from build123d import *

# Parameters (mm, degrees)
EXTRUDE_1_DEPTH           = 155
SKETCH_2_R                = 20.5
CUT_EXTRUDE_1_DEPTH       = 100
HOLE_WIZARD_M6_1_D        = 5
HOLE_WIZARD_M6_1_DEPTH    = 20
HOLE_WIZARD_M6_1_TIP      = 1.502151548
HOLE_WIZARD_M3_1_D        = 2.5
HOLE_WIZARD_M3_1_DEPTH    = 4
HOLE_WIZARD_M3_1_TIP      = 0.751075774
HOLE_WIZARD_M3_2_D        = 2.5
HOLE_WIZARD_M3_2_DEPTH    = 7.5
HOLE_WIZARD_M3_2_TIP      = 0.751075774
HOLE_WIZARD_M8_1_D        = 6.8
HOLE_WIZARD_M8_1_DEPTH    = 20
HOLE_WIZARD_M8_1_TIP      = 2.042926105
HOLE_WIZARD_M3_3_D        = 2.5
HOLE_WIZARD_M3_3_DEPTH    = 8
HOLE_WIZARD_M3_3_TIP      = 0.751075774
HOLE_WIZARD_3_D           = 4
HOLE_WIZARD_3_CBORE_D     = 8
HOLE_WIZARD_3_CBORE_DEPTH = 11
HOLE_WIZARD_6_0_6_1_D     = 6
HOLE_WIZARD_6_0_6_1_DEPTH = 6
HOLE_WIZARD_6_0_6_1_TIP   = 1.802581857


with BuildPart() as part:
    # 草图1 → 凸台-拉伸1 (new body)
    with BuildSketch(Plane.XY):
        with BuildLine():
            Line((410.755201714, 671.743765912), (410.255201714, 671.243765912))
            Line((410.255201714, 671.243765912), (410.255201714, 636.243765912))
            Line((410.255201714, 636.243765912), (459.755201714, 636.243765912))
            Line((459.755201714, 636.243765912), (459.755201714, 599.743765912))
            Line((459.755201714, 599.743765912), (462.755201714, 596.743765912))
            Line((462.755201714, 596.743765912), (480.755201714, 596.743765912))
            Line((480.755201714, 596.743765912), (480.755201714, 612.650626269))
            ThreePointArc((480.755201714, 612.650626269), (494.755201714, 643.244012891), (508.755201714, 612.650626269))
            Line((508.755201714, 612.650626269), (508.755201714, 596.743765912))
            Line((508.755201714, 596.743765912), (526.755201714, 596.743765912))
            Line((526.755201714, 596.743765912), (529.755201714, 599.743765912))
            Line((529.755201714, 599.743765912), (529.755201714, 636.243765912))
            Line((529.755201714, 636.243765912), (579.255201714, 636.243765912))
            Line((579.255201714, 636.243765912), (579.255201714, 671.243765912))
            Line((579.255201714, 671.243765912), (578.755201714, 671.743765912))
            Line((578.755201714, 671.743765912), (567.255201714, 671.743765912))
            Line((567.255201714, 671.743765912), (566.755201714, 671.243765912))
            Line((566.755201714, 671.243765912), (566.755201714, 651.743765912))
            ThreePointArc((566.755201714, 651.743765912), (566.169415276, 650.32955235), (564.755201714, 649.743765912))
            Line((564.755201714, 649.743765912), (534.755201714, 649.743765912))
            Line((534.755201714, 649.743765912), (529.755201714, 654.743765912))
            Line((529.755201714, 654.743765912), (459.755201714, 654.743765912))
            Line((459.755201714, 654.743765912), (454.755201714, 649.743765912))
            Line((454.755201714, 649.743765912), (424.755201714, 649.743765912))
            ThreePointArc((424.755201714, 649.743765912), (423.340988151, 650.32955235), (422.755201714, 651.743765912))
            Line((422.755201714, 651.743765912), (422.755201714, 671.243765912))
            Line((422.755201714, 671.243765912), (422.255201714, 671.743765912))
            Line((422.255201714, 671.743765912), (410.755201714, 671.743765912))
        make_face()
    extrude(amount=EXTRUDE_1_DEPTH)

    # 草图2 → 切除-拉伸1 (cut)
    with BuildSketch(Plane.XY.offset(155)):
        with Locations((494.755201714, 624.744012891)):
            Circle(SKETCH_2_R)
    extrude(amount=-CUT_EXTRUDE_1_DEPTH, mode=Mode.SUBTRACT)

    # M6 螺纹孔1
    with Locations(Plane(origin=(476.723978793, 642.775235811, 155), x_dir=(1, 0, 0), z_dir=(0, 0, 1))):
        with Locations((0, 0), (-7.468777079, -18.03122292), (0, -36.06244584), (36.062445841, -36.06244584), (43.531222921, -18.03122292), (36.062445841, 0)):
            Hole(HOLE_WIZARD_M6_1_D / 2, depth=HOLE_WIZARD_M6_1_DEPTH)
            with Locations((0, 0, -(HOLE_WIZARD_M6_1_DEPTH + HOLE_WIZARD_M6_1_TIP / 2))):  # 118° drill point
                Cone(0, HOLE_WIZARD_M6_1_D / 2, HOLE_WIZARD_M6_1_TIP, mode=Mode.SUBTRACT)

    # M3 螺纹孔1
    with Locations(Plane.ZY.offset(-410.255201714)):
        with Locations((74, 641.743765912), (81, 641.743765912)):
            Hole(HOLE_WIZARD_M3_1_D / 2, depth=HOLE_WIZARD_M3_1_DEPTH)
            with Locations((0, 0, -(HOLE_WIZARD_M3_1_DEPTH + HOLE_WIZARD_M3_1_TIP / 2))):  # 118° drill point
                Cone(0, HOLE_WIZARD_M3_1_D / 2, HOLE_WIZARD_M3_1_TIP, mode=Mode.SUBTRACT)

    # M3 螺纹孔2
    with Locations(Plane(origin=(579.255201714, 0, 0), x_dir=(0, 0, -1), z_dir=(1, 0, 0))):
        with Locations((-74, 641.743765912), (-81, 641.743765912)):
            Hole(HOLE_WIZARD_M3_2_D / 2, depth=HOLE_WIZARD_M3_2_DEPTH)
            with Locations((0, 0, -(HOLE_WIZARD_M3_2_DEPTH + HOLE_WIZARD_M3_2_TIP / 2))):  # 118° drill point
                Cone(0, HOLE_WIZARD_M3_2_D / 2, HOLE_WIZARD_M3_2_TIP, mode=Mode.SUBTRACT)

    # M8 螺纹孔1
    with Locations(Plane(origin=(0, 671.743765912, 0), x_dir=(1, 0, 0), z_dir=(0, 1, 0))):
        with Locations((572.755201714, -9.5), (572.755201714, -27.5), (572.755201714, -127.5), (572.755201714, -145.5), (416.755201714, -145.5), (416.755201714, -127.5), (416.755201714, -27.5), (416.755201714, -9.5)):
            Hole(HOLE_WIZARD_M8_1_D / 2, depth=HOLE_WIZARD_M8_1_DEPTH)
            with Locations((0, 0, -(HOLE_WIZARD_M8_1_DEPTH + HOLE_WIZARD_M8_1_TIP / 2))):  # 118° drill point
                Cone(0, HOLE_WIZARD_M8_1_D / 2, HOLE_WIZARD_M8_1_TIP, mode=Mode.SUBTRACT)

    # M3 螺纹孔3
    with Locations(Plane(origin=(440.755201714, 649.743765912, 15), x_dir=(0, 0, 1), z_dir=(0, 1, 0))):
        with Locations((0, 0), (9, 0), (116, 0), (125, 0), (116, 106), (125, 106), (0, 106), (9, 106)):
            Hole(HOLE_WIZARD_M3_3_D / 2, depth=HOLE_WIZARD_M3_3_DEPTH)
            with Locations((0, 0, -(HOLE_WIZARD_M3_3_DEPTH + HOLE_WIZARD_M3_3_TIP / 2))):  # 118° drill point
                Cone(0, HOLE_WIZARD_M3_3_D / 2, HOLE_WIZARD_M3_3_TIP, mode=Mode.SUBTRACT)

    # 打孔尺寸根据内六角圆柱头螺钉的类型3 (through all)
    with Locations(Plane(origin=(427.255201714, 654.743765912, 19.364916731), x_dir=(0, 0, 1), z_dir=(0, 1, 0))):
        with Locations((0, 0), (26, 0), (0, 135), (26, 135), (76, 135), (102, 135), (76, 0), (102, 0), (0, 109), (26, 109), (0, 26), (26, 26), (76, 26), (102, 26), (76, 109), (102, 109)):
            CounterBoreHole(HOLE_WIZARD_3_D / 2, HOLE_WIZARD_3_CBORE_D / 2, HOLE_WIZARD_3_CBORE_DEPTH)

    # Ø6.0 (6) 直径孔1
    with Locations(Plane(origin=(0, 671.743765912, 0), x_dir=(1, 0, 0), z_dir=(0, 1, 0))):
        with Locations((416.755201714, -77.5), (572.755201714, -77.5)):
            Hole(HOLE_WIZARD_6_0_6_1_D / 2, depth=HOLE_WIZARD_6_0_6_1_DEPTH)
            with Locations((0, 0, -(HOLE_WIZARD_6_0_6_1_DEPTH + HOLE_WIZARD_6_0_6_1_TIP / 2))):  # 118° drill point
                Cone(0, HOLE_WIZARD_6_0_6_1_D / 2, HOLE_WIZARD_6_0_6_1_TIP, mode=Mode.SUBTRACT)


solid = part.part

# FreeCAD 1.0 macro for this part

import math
import FreeCAD as App
import Part
import Sketcher

doc = App.newDocument("Part")
body = doc.addObject("PartDesign::Body", "Body")

sketch1 = body.newObject("Sketcher::SketchObject", "Sketch")
sketch1.AttachmentSupport = (doc.getObject("XY_Plane"), [""])
sketch1.MapMode = "FlatFace"
sketch1.addGeometry([
    Part.LineSegment(App.Vector(410.8, 671.7, 0), App.Vector(410.3, 671.2, 0)),
    Part.LineSegment(App.Vector(410.3, 671.2, 0), App.Vector(410.3, 636.2, 0)),
    Part.LineSegment(App.Vector(410.3, 636.2, 0), App.Vector(459.8, 636.2, 0)),
    Part.LineSegment(App.Vector(459.8, 636.2, 0), App.Vector(459.8, 599.7, 0)),
    Part.LineSegment(App.Vector(459.8, 599.7, 0), App.Vector(462.8, 596.7, 0)),
    Part.LineSegment(App.Vector(462.8, 596.7, 0), App.Vector(480.8, 596.7, 0)),
    Part.LineSegment(App.Vector(480.8, 596.7, 0), App.Vector(480.8, 612.7, 0)),
    Part.ArcOfCircle(Part.Circle(App.Vector(494.8, 624.7, 0), App.Vector(0, 0, 1), 18.5), math.radians(-41), math.radians(221)),
    Part.LineSegment(App.Vector(508.8, 612.7, 0), App.Vector(508.8, 596.7, 0)),
    Part.LineSegment(App.Vector(508.8, 596.7, 0), App.Vector(526.8, 596.7, 0)),
    Part.LineSegment(App.Vector(526.8, 596.7, 0), App.Vector(529.8, 599.7, 0)),
    Part.LineSegment(App.Vector(529.8, 599.7, 0), App.Vector(529.8, 636.2, 0)),
    Part.LineSegment(App.Vector(529.8, 636.2, 0), App.Vector(579.3, 636.2, 0)),
    Part.LineSegment(App.Vector(579.3, 636.2, 0), App.Vector(579.3, 671.2, 0)),
    Part.LineSegment(App.Vector(579.3, 671.2, 0), App.Vector(578.8, 671.7, 0)),
    Part.LineSegment(App.Vector(578.8, 671.7, 0), App.Vector(567.3, 671.7, 0)),
    Part.LineSegment(App.Vector(567.3, 671.7, 0), App.Vector(566.8, 671.2, 0)),
    Part.LineSegment(App.Vector(566.8, 671.2, 0), App.Vector(566.8, 651.7, 0)),
    Part.ArcOfCircle(Part.Circle(App.Vector(564.8, 651.7, 0), App.Vector(0, 0, 1), 2), math.radians(-90), math.radians(0)),
    Part.LineSegment(App.Vector(564.8, 649.7, 0), App.Vector(534.8, 649.7, 0)),
    Part.LineSegment(App.Vector(534.8, 649.7, 0), App.Vector(529.8, 654.7, 0)),
    Part.LineSegment(App.Vector(529.8, 654.7, 0), App.Vector(459.8, 654.7, 0)),
    Part.LineSegment(App.Vector(459.8, 654.7, 0), App.Vector(454.8, 649.7, 0)),
    Part.LineSegment(App.Vector(454.8, 649.7, 0), App.Vector(424.8, 649.7, 0)),
    Part.ArcOfCircle(Part.Circle(App.Vector(424.8, 651.7, 0), App.Vector(0, 0, 1), 2), math.radians(180), math.radians(270)),
    Part.LineSegment(App.Vector(422.8, 651.7, 0), App.Vector(422.8, 671.2, 0)),
    Part.LineSegment(App.Vector(422.8, 671.2, 0), App.Vector(422.3, 671.7, 0)),
    Part.LineSegment(App.Vector(422.3, 671.7, 0), App.Vector(410.8, 671.7, 0)),
], False)
sketch1.addConstraint([
    Sketcher.Constraint("Coincident", 0, 2, 1, 1),
    Sketcher.Constraint("Coincident", 1, 2, 2, 1),
    Sketcher.Constraint("Coincident", 2, 2, 3, 1),
    Sketcher.Constraint("Coincident", 3, 2, 4, 1),
    Sketcher.Constraint("Coincident", 4, 2, 5, 1),
    Sketcher.Constraint("Coincident", 5, 2, 6, 1),
    Sketcher.Constraint("Coincident", 6, 2, 7, 2),
    Sketcher.Constraint("Coincident", 7, 1, 8, 1),
    Sketcher.Constraint("Coincident", 8, 2, 9, 1),
    Sketcher.Constraint("Coincident", 9, 2, 10, 1),
    Sketcher.Constraint("Coincident", 10, 2, 11, 1),
    Sketcher.Constraint("Coincident", 11, 2, 12, 1),
    Sketcher.Constraint("Coincident", 12, 2, 13, 1),
    Sketcher.Constraint("Coincident", 13, 2, 14, 1),
    Sketcher.Constraint("Coincident", 14, 2, 15, 1),
    Sketcher.Constraint("Coincident", 15, 2, 16, 1),
    Sketcher.Constraint("Coincident", 16, 2, 17, 1),
    Sketcher.Constraint("Tangent", 17, 2, 18, 2),
    Sketcher.Constraint("Tangent", 18, 1, 19, 1),
    Sketcher.Constraint("Coincident", 19, 2, 20, 1),
    Sketcher.Constraint("Coincident", 20, 2, 21, 1),
    Sketcher.Constraint("Coincident", 21, 2, 22, 1),
    Sketcher.Constraint("Coincident", 22, 2, 23, 1),
    Sketcher.Constraint("Tangent", 23, 2, 24, 2),
    Sketcher.Constraint("Tangent", 24, 1, 25, 1),
    Sketcher.Constraint("Coincident", 25, 2, 26, 1),
    Sketcher.Constraint("Coincident", 26, 2, 27, 1),
    Sketcher.Constraint("Coincident", 27, 2, 0, 1),
    Sketcher.Constraint("Vertical", 1),
    Sketcher.Constraint("Horizontal", 2),
    Sketcher.Constraint("Vertical", 3),
    Sketcher.Constraint("Horizontal", 5),
    Sketcher.Constraint("Vertical", 6),
    Sketcher.Constraint("Vertical", 8),
    Sketcher.Constraint("Horizontal", 9),
    Sketcher.Constraint("Vertical", 11),
    Sketcher.Constraint("Horizontal", 12),
    Sketcher.Constraint("Vertical", 13),
    Sketcher.Constraint("Horizontal", 15),
    Sketcher.Constraint("Vertical", 17),
    Sketcher.Constraint("Horizontal", 19),
    Sketcher.Constraint("Horizontal", 21),
    Sketcher.Constraint("Horizontal", 23),
    Sketcher.Constraint("Vertical", 25),
    Sketcher.Constraint("Horizontal", 27),
    Sketcher.Constraint("Equal", 18, 24),
    Sketcher.Constraint("Perpendicular", 0, 4),
    Sketcher.Constraint("Perpendicular", 4, 10),
    Sketcher.Constraint("Perpendicular", 10, 14),
    Sketcher.Constraint("Perpendicular", 14, 16),
    Sketcher.Constraint("Perpendicular", 16, 20),
    Sketcher.Constraint("Perpendicular", 20, 22),
    Sketcher.Constraint("Perpendicular", 22, 26),
    Sketcher.Constraint("Horizontal", 18, 3, 24, 3),
    Sketcher.Constraint("Horizontal", 6, 2, 7, 1),
    Sketcher.Constraint("Horizontal", 5, 2, 8, 2),
    Sketcher.Constraint("Horizontal", 3, 2, 10, 2),
    Sketcher.Constraint("Horizontal", 2, 2, 11, 2),
    Sketcher.Constraint("Horizontal", 0, 2, 13, 2),
    Sketcher.Constraint("Horizontal", 13, 2, 16, 2),
    Sketcher.Constraint("Horizontal", 16, 2, 25, 2),
    Sketcher.Constraint("Horizontal", 15, 2, 26, 2),
    Sketcher.Constraint("Vertical", 11, 2, 20, 2),
    Sketcher.Constraint("Vertical", 3, 2, 21, 2),
    Sketcher.Constraint("Equal", 5, 9),
    Sketcher.Constraint("Equal", 2, 12),
    Sketcher.Constraint("Equal", 19, 23),
    Sketcher.Constraint("Equal", 15, 27),
    Sketcher.Constraint("Radius", 18, 2.0),
    Sketcher.Constraint("Radius", 7, 18.5),
    Sketcher.Constraint("DistanceX", 5, 1, 5, 2, 18.0),
    Sketcher.Constraint("DistanceX", 19, 2, 19, 1, 30.0),
    Sketcher.Constraint("DistanceX", 21, 2, 21, 1, 70.0),
    Sketcher.Constraint("DistanceY", 1, 2, 1, 1, 35.0),
    Sketcher.Constraint("DistanceX", 2, 1, 2, 2, 49.5),
    Sketcher.Constraint("DistanceX", 15, 2, 15, 1, 11.5),
    Sketcher.Constraint("DistanceY", 3, 2, 3, 1, 36.5),
    Sketcher.Constraint("DistanceY", 17, 2, 17, 1, 19.5),
    Sketcher.Constraint("DistanceX", 7, 3, 18, 3, 70.0),
    Sketcher.Constraint("DistanceX", 3, 2, 4, 2, 3.0),
    Sketcher.Constraint("DistanceY", 6, 1, 6, 2, 15.90686),
    Sketcher.Constraint("DistanceX", -1, 1, 7, 3, 494.755202),
    Sketcher.Constraint("DistanceY", -1, 1, 7, 3, 624.744013),
])
pad1 = body.newObject("PartDesign::Pad", "Pad")
pad1.Profile = sketch1
pad1.Length = 155

sketch2 = body.newObject("Sketcher::SketchObject", "Sketch001")
sketch2.AttachmentSupport = (doc.getObject("XY_Plane"), [""])
sketch2.MapMode = "FlatFace"
sketch2.AttachmentOffset = App.Placement(App.Vector(0, 0, 155), App.Rotation())
sketch2.addGeometry(Part.Circle(App.Vector(495, 625, 0), App.Vector(0, 0, 1), 20), False)
sketch2.addConstraint([
    Sketcher.Constraint("Diameter", 0, 41.0),
    Sketcher.Constraint("DistanceX", -1, 1, 0, 3, 494.755202),
    Sketcher.Constraint("DistanceY", -1, 1, 0, 3, 624.744013),
])
pocket1 = body.newObject("PartDesign::Pocket", "Pocket")
pocket1.Profile = sketch2
pocket1.Length = 100

sketch3 = body.newObject("Sketcher::SketchObject", "Sketch002")
sketch3.AttachmentSupport = (doc.getObject("XY_Plane"), [""])
sketch3.MapMode = "FlatFace"
sketch3.AttachmentOffset = App.Placement(App.Vector(0, 0, 155), App.Rotation())
sketch3.addGeometry([
    Part.Circle(App.Vector(476.7, 642.8, 0), App.Vector(0, 0, 1), 2.5),
    Part.Circle(App.Vector(469.3, 624.7, 0), App.Vector(0, 0, 1), 2.5),
    Part.Circle(App.Vector(476.7, 606.7, 0), App.Vector(0, 0, 1), 2.5),
    Part.Circle(App.Vector(512.8, 606.7, 0), App.Vector(0, 0, 1), 2.5),
    Part.Circle(App.Vector(520.3, 624.7, 0), App.Vector(0, 0, 1), 2.5),
    Part.Circle(App.Vector(512.8, 642.8, 0), App.Vector(0, 0, 1), 2.5),
], False)
sketch3.addConstraint([
    Sketcher.Constraint("Equal", 0, 1),
    Sketcher.Constraint("Equal", 1, 2),
    Sketcher.Constraint("Equal", 2, 3),
    Sketcher.Constraint("Equal", 3, 4),
    Sketcher.Constraint("Equal", 4, 5),
    Sketcher.Constraint("Horizontal", 2, 3, 3, 3),
    Sketcher.Constraint("Horizontal", 1, 3, 4, 3),
    Sketcher.Constraint("Horizontal", 0, 3, 5, 3),
    Sketcher.Constraint("Vertical", 0, 3, 2, 3),
    Sketcher.Constraint("Vertical", 3, 3, 5, 3),
    Sketcher.Constraint("Diameter", 0, 5.0),
    Sketcher.Constraint("DistanceX", 1, 3, 4, 3, 51.0),
    Sketcher.Constraint("DistanceX", -1, 1, 1, 3, 469.255202),
    Sketcher.Constraint("DistanceX", -1, 1, 0, 3, 476.723979),
    Sketcher.Constraint("DistanceY", -1, 1, 2, 3, 606.71279),
    Sketcher.Constraint("DistanceY", -1, 1, 0, 3, 642.775236),
    Sketcher.Constraint("DistanceY", -1, 1, 1, 3, 624.744013),
    Sketcher.Constraint("DistanceX", -1, 1, 3, 3, 512.786425),
])
doc.recompute()
hole = body.newObject("PartDesign::Hole", "Hole")
hole.Profile = sketch3
hole.ThreadType = "None"
hole.Diameter = 5
hole.DepthType = "Dimension"
hole.Depth = 20
hole.DrillPoint = "Angled"
hole.DrillPointAngle = 118

sketch4 = body.newObject("Sketcher::SketchObject", "Sketch003")
sketch4.AttachmentSupport = (doc.getObject("YZ_Plane"), [""])
sketch4.MapMode = "FlatFace"
sketch4.AttachmentOffset = App.Placement(App.Vector(0, 0, 410.255202), App.Rotation())
sketch4.addGeometry([
    Part.Circle(App.Vector(641.7, 74, 0), App.Vector(0, 0, 1), 1.2),
    Part.Circle(App.Vector(641.7, 81, 0), App.Vector(0, 0, 1), 1.2),
], False)
sketch4.addConstraint([
    Sketcher.Constraint("Equal", 0, 1),
    Sketcher.Constraint("Vertical", 0, 3, 1, 3),
    Sketcher.Constraint("Diameter", 0, 2.5),
    Sketcher.Constraint("DistanceY", -1, 1, 0, 3, 74.0),
    Sketcher.Constraint("DistanceY", -1, 1, 1, 3, 81.0),
    Sketcher.Constraint("DistanceX", -1, 1, 0, 3, 641.743766),
])
doc.recompute()
hole2 = body.newObject("PartDesign::Hole", "Hole001")
hole2.Profile = sketch4
hole2.ThreadType = "None"
hole2.Diameter = 2.5
hole2.DepthType = "Dimension"
hole2.Depth = 4
hole2.DrillPoint = "Angled"
hole2.DrillPointAngle = 118
hole2.Reversed = True

sketch5 = body.newObject("Sketcher::SketchObject", "Sketch004")
sketch5.AttachmentSupport = (doc.getObject("YZ_Plane"), [""])
sketch5.MapMode = "FlatFace"
sketch5.AttachmentOffset = App.Placement(App.Vector(0, 0, 579.255202), App.Rotation())
sketch5.addGeometry([
    Part.Circle(App.Vector(641.7, 74, 0), App.Vector(0, 0, 1), 1.2),
    Part.Circle(App.Vector(641.7, 81, 0), App.Vector(0, 0, 1), 1.2),
], False)
sketch5.addConstraint([
    Sketcher.Constraint("Equal", 0, 1),
    Sketcher.Constraint("Vertical", 0, 3, 1, 3),
    Sketcher.Constraint("Diameter", 0, 2.5),
    Sketcher.Constraint("DistanceY", -1, 1, 0, 3, 74.0),
    Sketcher.Constraint("DistanceY", -1, 1, 1, 3, 81.0),
    Sketcher.Constraint("DistanceX", -1, 1, 0, 3, 641.743766),
])
doc.recompute()
hole3 = body.newObject("PartDesign::Hole", "Hole002")
hole3.Profile = sketch5
hole3.ThreadType = "None"
hole3.Diameter = 2.5
hole3.DepthType = "Dimension"
hole3.Depth = 7.5
hole3.DrillPoint = "Angled"
hole3.DrillPointAngle = 118

sketch6 = body.newObject("Sketcher::SketchObject", "Sketch005")
sketch6.AttachmentSupport = (doc.getObject("XZ_Plane"), [""])
sketch6.MapMode = "FlatFace"
sketch6.AttachmentOffset = App.Placement(App.Vector(0, 0, -671.743766), App.Rotation())
sketch6.addGeometry([
    Part.Circle(App.Vector(572.8, 9.5, 0), App.Vector(0, 0, 1), 3.4),
    Part.Circle(App.Vector(572.8, 27.5, 0), App.Vector(0, 0, 1), 3.4),
    Part.Circle(App.Vector(572.8, 127.5, 0), App.Vector(0, 0, 1), 3.4),
    Part.Circle(App.Vector(572.8, 145.5, 0), App.Vector(0, 0, 1), 3.4),
    Part.Circle(App.Vector(416.8, 145.5, 0), App.Vector(0, 0, 1), 3.4),
    Part.Circle(App.Vector(416.8, 127.5, 0), App.Vector(0, 0, 1), 3.4),
    Part.Circle(App.Vector(416.8, 27.5, 0), App.Vector(0, 0, 1), 3.4),
    Part.Circle(App.Vector(416.8, 9.5, 0), App.Vector(0, 0, 1), 3.4),
], False)
sketch6.addConstraint([
    Sketcher.Constraint("Equal", 0, 1),
    Sketcher.Constraint("Equal", 1, 2),
    Sketcher.Constraint("Equal", 2, 3),
    Sketcher.Constraint("Equal", 3, 4),
    Sketcher.Constraint("Equal", 4, 5),
    Sketcher.Constraint("Equal", 5, 6),
    Sketcher.Constraint("Equal", 6, 7),
    Sketcher.Constraint("Horizontal", 3, 3, 4, 3),
    Sketcher.Constraint("Horizontal", 2, 3, 5, 3),
    Sketcher.Constraint("Horizontal", 1, 3, 6, 3),
    Sketcher.Constraint("Horizontal", 0, 3, 7, 3),
    Sketcher.Constraint("Vertical", 0, 3, 1, 3),
    Sketcher.Constraint("Vertical", 1, 3, 2, 3),
    Sketcher.Constraint("Vertical", 2, 3, 3, 3),
    Sketcher.Constraint("Vertical", 4, 3, 5, 3),
    Sketcher.Constraint("Vertical", 5, 3, 6, 3),
    Sketcher.Constraint("Vertical", 6, 3, 7, 3),
    Sketcher.Constraint("Diameter", 0, 6.8),
    Sketcher.Constraint("DistanceY", 0, 3, 1, 3, 18.0),
    Sketcher.Constraint("DistanceY", 1, 3, 2, 3, 100.0),
    Sketcher.Constraint("DistanceY", 2, 3, 3, 3, 18.0),
    Sketcher.Constraint("DistanceX", 4, 3, 3, 3, 156.0),
    Sketcher.Constraint("DistanceY", -1, 1, 0, 3, 9.5),
    Sketcher.Constraint("DistanceX", -1, 1, 0, 3, 572.755202),
])
doc.recompute()
hole4 = body.newObject("PartDesign::Hole", "Hole003")
hole4.Profile = sketch6
hole4.ThreadType = "None"
hole4.Diameter = 6.8
hole4.DepthType = "Dimension"
hole4.Depth = 20
hole4.DrillPoint = "Angled"
hole4.DrillPointAngle = 118
hole4.Reversed = True

sketch7 = body.newObject("Sketcher::SketchObject", "Sketch006")
sketch7.AttachmentSupport = (doc.getObject("XZ_Plane"), [""])
sketch7.MapMode = "FlatFace"
sketch7.AttachmentOffset = App.Placement(App.Vector(0, 0, -649.743766), App.Rotation())
sketch7.addGeometry([
    Part.Circle(App.Vector(440.8, 15, 0), App.Vector(0, 0, 1), 1.2),
    Part.Circle(App.Vector(440.8, 24, 0), App.Vector(0, 0, 1), 1.2),
    Part.Circle(App.Vector(440.8, 131, 0), App.Vector(0, 0, 1), 1.2),
    Part.Circle(App.Vector(440.8, 140, 0), App.Vector(0, 0, 1), 1.2),
    Part.Circle(App.Vector(546.8, 131, 0), App.Vector(0, 0, 1), 1.2),
    Part.Circle(App.Vector(546.8, 140, 0), App.Vector(0, 0, 1), 1.2),
    Part.Circle(App.Vector(546.8, 15, 0), App.Vector(0, 0, 1), 1.2),
    Part.Circle(App.Vector(546.8, 24, 0), App.Vector(0, 0, 1), 1.2),
], False)
sketch7.addConstraint([
    Sketcher.Constraint("Equal", 0, 1),
    Sketcher.Constraint("Equal", 1, 2),
    Sketcher.Constraint("Equal", 2, 3),
    Sketcher.Constraint("Equal", 3, 4),
    Sketcher.Constraint("Equal", 4, 5),
    Sketcher.Constraint("Equal", 5, 6),
    Sketcher.Constraint("Equal", 6, 7),
    Sketcher.Constraint("Horizontal", 2, 3, 4, 3),
    Sketcher.Constraint("Horizontal", 3, 3, 5, 3),
    Sketcher.Constraint("Horizontal", 0, 3, 6, 3),
    Sketcher.Constraint("Horizontal", 1, 3, 7, 3),
    Sketcher.Constraint("Vertical", 0, 3, 1, 3),
    Sketcher.Constraint("Vertical", 1, 3, 2, 3),
    Sketcher.Constraint("Vertical", 2, 3, 3, 3),
    Sketcher.Constraint("Vertical", 4, 3, 5, 3),
    Sketcher.Constraint("Vertical", 5, 3, 6, 3),
    Sketcher.Constraint("Vertical", 6, 3, 7, 3),
    Sketcher.Constraint("Diameter", 0, 2.5),
    Sketcher.Constraint("DistanceY", -1, 1, 0, 3, 15.0),
    Sketcher.Constraint("DistanceY", -1, 1, 1, 3, 24.0),
    Sketcher.Constraint("DistanceY", -1, 1, 2, 3, 131.0),
    Sketcher.Constraint("DistanceY", -1, 1, 3, 3, 140.0),
    Sketcher.Constraint("DistanceX", 2, 3, 4, 3, 106.0),
    Sketcher.Constraint("DistanceX", -1, 1, 0, 3, 440.755202),
])
doc.recompute()
hole5 = body.newObject("PartDesign::Hole", "Hole004")
hole5.Profile = sketch7
hole5.ThreadType = "None"
hole5.Diameter = 2.5
hole5.DepthType = "Dimension"
hole5.Depth = 8
hole5.DrillPoint = "Angled"
hole5.DrillPointAngle = 118
hole5.Reversed = True

sketch8 = body.newObject("Sketcher::SketchObject", "Sketch007")
sketch8.AttachmentSupport = (doc.getObject("XZ_Plane"), [""])
sketch8.MapMode = "FlatFace"
sketch8.AttachmentOffset = App.Placement(App.Vector(0, 0, -654.743766), App.Rotation())
sketch8.addGeometry([
    Part.Circle(App.Vector(427.3, 19.4, 0), App.Vector(0, 0, 1), 2),
    Part.Circle(App.Vector(427.3, 45.4, 0), App.Vector(0, 0, 1), 2),
    Part.Circle(App.Vector(562.3, 19.4, 0), App.Vector(0, 0, 1), 2),
    Part.Circle(App.Vector(562.3, 45.4, 0), App.Vector(0, 0, 1), 2),
    Part.Circle(App.Vector(562.3, 95.4, 0), App.Vector(0, 0, 1), 2),
    Part.Circle(App.Vector(562.3, 121.4, 0), App.Vector(0, 0, 1), 2),
    Part.Circle(App.Vector(427.3, 95.4, 0), App.Vector(0, 0, 1), 2),
    Part.Circle(App.Vector(427.3, 121.4, 0), App.Vector(0, 0, 1), 2),
    Part.Circle(App.Vector(536.3, 19.4, 0), App.Vector(0, 0, 1), 2),
    Part.Circle(App.Vector(536.3, 45.4, 0), App.Vector(0, 0, 1), 2),
    Part.Circle(App.Vector(453.3, 19.4, 0), App.Vector(0, 0, 1), 2),
    Part.Circle(App.Vector(453.3, 45.4, 0), App.Vector(0, 0, 1), 2),
    Part.Circle(App.Vector(453.3, 95.4, 0), App.Vector(0, 0, 1), 2),
    Part.Circle(App.Vector(453.3, 121.4, 0), App.Vector(0, 0, 1), 2),
    Part.Circle(App.Vector(536.3, 95.4, 0), App.Vector(0, 0, 1), 2),
    Part.Circle(App.Vector(536.3, 121.4, 0), App.Vector(0, 0, 1), 2),
], False)
sketch8.addConstraint([
    Sketcher.Constraint("Equal", 0, 1),
    Sketcher.Constraint("Equal", 1, 2),
    Sketcher.Constraint("Equal", 2, 3),
    Sketcher.Constraint("Equal", 3, 4),
    Sketcher.Constraint("Equal", 4, 5),
    Sketcher.Constraint("Equal", 5, 6),
    Sketcher.Constraint("Equal", 6, 7),
    Sketcher.Constraint("Equal", 7, 8),
    Sketcher.Constraint("Equal", 8, 9),
    Sketcher.Constraint("Equal", 9, 10),
    Sketcher.Constraint("Equal", 10, 11),
    Sketcher.Constraint("Equal", 11, 12),
    Sketcher.Constraint("Equal", 12, 13),
    Sketcher.Constraint("Equal", 13, 14),
    Sketcher.Constraint("Equal", 14, 15),
    Sketcher.Constraint("Horizontal", 0, 3, 2, 3),
    Sketcher.Constraint("Horizontal", 1, 3, 3, 3),
    Sketcher.Constraint("Horizontal", 4, 3, 6, 3),
    Sketcher.Constraint("Horizontal", 5, 3, 7, 3),
    Sketcher.Constraint("Horizontal", 2, 3, 8, 3),
    Sketcher.Constraint("Horizontal", 3, 3, 9, 3),
    Sketcher.Constraint("Horizontal", 8, 3, 10, 3),
    Sketcher.Constraint("Horizontal", 9, 3, 11, 3),
    Sketcher.Constraint("Horizontal", 6, 3, 12, 3),
    Sketcher.Constraint("Horizontal", 7, 3, 13, 3),
    Sketcher.Constraint("Horizontal", 12, 3, 14, 3),
    Sketcher.Constraint("Horizontal", 13, 3, 15, 3),
    Sketcher.Constraint("Vertical", 0, 3, 1, 3),
    Sketcher.Constraint("Vertical", 2, 3, 3, 3),
    Sketcher.Constraint("Vertical", 3, 3, 4, 3),
    Sketcher.Constraint("Vertical", 4, 3, 5, 3),
    Sketcher.Constraint("Vertical", 1, 3, 6, 3),
    Sketcher.Constraint("Vertical", 6, 3, 7, 3),
    Sketcher.Constraint("Vertical", 8, 3, 9, 3),
    Sketcher.Constraint("Vertical", 10, 3, 11, 3),
    Sketcher.Constraint("Vertical", 11, 3, 12, 3),
    Sketcher.Constraint("Vertical", 12, 3, 13, 3),
    Sketcher.Constraint("Vertical", 9, 3, 14, 3),
    Sketcher.Constraint("Vertical", 14, 3, 15, 3),
    Sketcher.Constraint("Diameter", 0, 4.0),
    Sketcher.Constraint("DistanceY", 0, 3, 1, 3, 26.0),
    Sketcher.Constraint("DistanceX", 0, 3, 2, 3, 135.0),
    Sketcher.Constraint("DistanceY", 3, 3, 4, 3, 50.0),
    Sketcher.Constraint("DistanceY", 4, 3, 5, 3, 26.0),
    Sketcher.Constraint("DistanceX", 8, 3, 2, 3, 26.0),
    Sketcher.Constraint("DistanceX", 0, 3, 10, 3, 26.0),
    Sketcher.Constraint("DistanceX", -1, 1, 0, 3, 427.255202),
    Sketcher.Constraint("DistanceY", -1, 1, 0, 3, 19.364917),
])
doc.recompute()
hole6 = body.newObject("PartDesign::Hole", "Hole005")
hole6.Profile = sketch8
hole6.ThreadType = "None"
hole6.Diameter = 4
hole6.DepthType = "ThroughAll"
hole6.HoleCutType = "Counterbore"
hole6.HoleCutDiameter = 8
hole6.HoleCutDepth = 11
hole6.Reversed = True

sketch9 = body.newObject("Sketcher::SketchObject", "Sketch008")
sketch9.AttachmentSupport = (doc.getObject("XZ_Plane"), [""])
sketch9.MapMode = "FlatFace"
sketch9.AttachmentOffset = App.Placement(App.Vector(0, 0, -671.743766), App.Rotation())
sketch9.addGeometry([
    Part.Circle(App.Vector(416.8, 77.5, 0), App.Vector(0, 0, 1), 3),
    Part.Circle(App.Vector(572.8, 77.5, 0), App.Vector(0, 0, 1), 3),
], False)
sketch9.addConstraint([
    Sketcher.Constraint("Equal", 0, 1),
    Sketcher.Constraint("Horizontal", 0, 3, 1, 3),
    Sketcher.Constraint("Diameter", 0, 6.0),
    Sketcher.Constraint("DistanceX", 0, 3, 1, 3, 156.0),
    Sketcher.Constraint("DistanceY", -1, 1, 0, 3, 77.5),
    Sketcher.Constraint("DistanceX", -1, 1, 0, 3, 416.755202),
])
doc.recompute()
hole7 = body.newObject("PartDesign::Hole", "Hole006")
hole7.Profile = sketch9
hole7.ThreadType = "None"
hole7.Diameter = 6
hole7.DepthType = "Dimension"
hole7.Depth = 6
hole7.DrillPoint = "Angled"
hole7.DrillPointAngle = 118
hole7.Reversed = True

doc.recompute()
